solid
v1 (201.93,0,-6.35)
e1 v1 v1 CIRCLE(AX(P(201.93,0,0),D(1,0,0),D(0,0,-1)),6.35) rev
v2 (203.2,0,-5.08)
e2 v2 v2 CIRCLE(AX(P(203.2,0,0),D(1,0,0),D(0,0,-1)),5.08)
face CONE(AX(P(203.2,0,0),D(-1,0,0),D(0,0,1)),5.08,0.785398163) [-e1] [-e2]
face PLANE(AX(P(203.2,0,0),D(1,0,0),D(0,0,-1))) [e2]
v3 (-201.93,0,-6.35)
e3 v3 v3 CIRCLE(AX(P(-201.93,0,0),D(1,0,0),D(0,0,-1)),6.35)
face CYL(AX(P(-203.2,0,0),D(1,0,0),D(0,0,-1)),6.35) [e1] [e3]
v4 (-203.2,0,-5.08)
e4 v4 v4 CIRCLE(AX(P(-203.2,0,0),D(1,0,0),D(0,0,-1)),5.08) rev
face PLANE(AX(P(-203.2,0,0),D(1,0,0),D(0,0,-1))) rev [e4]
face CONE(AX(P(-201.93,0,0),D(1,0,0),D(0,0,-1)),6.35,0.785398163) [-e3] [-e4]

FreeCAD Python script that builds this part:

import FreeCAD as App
import Part
import Sketcher
from FreeCAD import Vector
Q = App.Units.Quantity


def edges_at(feature, points):
    """Names of the edges that pass closest to the given points."""
    edges = feature.Shape.Edges
    near = lambda p: min(range(len(edges)), key=lambda i: edges[i].distToShape(Part.Vertex(*p))[0])
    return sorted({f"Edge{near(p) + 1}" for p in points})

doc = App.newDocument("Part")
body = doc.addObject("PartDesign::Body", "Body")

# Sketch on YZ plane
sketch1 = doc.addObject("Sketcher::SketchObject", "Sketch")
body.addObject(sketch1)
sketch1.AttachmentSupport = (doc.YZ_Plane, [""])
sketch1.MapMode = "FlatFace"
sketch1.addGeometry(Part.Circle(Vector(0, 0, 0), Vector(0, 0, 1), 6), False)
sketch1.addConstraint([
    Sketcher.Constraint("Coincident", 0, 3, -1, 1),
    Sketcher.Constraint("Diameter", 0, Q("0.5 in")),
])
pad1 = doc.addObject("PartDesign::Pad", "Pad")
body.addObject(pad1)
pad1.Profile = sketch1
pad1.Type = "TwoLengths"
pad1.Length = Q("8 in")
pad1.Length2 = Q("8 in")
doc.recompute()

chamfer = doc.addObject("PartDesign::Chamfer", "Chamfer")
body.addObject(chamfer)
chamfer.Base = (pad1, edges_at(pad1, [(-203.2, 0, 6.35), (203.2, 0, 6.35)]))
chamfer.Size = Q("0.05 in")

doc.recompute()
